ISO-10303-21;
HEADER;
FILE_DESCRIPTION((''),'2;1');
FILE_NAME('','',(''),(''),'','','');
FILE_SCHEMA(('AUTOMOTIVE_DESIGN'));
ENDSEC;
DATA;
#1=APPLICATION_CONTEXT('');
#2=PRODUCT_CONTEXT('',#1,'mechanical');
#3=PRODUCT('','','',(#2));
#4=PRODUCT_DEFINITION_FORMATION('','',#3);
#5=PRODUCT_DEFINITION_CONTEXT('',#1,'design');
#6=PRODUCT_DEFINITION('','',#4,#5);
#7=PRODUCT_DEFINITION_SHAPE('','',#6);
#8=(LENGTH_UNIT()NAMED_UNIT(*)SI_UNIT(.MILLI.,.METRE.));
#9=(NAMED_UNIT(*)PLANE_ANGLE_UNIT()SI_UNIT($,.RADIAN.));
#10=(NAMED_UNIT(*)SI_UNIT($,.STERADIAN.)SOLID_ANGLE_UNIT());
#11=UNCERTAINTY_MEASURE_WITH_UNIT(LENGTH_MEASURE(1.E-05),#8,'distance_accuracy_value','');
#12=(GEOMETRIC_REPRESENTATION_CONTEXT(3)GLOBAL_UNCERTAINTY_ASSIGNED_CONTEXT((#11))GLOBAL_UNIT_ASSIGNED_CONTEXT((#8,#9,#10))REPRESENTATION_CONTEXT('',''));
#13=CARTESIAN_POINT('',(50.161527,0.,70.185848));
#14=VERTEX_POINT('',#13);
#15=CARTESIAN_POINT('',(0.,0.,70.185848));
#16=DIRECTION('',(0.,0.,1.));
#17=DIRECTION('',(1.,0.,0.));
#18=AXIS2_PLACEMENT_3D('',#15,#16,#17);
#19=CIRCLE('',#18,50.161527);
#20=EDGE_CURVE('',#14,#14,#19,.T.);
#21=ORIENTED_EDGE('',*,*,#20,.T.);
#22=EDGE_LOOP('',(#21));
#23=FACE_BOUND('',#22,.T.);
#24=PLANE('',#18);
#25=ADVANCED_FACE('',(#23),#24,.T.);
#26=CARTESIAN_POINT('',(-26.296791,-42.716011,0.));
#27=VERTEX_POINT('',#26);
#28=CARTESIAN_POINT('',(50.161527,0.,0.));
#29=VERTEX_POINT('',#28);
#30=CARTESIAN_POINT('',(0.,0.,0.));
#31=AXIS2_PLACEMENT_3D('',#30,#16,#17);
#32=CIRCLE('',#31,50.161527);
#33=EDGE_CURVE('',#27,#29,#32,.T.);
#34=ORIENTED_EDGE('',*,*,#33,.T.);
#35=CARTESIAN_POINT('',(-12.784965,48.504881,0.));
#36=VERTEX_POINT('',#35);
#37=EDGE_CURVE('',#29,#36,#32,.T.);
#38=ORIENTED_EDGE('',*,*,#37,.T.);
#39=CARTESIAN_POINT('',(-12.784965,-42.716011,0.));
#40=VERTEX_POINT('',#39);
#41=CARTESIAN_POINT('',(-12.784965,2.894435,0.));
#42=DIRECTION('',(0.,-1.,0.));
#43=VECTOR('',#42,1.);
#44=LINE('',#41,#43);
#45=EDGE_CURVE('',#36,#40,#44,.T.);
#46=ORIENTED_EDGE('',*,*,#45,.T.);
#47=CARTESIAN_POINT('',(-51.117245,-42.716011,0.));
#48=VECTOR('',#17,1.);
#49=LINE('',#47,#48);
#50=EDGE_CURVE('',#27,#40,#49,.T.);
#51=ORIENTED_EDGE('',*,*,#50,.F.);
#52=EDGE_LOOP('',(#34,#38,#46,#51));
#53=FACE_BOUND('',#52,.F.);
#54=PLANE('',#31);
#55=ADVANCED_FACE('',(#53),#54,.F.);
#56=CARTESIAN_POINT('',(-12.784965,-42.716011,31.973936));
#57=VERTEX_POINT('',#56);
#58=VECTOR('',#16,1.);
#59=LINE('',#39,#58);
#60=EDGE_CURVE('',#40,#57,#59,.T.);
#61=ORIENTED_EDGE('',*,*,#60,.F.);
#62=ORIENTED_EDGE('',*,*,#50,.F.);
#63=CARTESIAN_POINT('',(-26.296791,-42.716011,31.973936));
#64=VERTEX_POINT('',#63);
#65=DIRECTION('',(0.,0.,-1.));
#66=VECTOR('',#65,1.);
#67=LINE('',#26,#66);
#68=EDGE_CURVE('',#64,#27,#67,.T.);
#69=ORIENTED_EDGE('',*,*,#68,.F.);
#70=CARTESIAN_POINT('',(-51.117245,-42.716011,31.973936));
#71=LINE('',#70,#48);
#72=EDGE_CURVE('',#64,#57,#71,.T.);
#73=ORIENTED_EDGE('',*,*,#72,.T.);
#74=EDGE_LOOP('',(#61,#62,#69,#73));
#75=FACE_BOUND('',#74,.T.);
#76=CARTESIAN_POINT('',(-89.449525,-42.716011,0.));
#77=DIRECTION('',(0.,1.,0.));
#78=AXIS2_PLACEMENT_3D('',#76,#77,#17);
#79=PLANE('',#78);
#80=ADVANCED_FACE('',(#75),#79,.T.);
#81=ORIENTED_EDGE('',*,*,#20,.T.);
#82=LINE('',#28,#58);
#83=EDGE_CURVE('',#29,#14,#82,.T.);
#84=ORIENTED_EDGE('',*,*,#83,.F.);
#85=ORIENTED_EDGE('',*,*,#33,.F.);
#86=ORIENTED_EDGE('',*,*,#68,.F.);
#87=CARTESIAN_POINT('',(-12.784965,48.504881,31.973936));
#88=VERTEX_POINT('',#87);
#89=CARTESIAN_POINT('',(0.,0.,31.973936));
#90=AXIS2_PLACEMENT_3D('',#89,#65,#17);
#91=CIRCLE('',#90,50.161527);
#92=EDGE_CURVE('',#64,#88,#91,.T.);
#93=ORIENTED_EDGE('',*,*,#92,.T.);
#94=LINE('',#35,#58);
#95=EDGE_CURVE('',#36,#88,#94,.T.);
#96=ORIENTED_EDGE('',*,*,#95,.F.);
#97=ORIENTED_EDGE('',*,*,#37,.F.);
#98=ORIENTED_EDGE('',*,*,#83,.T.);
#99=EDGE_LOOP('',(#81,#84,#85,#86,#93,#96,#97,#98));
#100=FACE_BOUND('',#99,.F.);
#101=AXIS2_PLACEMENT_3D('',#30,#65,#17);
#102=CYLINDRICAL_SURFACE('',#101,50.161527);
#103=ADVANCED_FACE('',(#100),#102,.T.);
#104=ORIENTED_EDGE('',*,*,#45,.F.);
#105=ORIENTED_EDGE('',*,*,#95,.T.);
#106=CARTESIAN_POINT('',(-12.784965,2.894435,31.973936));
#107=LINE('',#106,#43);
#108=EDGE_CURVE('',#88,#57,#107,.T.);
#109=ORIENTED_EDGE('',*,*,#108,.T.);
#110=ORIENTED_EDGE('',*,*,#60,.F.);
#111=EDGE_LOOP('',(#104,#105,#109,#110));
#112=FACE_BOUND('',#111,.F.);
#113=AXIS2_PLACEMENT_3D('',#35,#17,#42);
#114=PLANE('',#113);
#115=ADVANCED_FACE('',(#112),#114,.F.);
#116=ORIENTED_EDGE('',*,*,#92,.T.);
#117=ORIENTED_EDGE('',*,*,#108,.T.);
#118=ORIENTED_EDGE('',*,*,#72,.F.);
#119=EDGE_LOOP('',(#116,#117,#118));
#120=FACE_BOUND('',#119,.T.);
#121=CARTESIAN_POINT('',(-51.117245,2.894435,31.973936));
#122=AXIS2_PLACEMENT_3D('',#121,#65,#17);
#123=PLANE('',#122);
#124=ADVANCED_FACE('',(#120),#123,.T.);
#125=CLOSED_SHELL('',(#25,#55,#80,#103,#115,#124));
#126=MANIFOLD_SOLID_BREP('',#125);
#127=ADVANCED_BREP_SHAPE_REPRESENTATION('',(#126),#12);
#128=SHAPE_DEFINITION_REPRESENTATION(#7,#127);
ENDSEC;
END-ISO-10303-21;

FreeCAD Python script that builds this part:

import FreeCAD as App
import Part
import Sketcher
from FreeCAD import Vector


def add_polygon(sketch, points):
    """Adds a closed chain of lines whose ends are joined by coincident constraints."""
    first, n = sketch.GeometryCount, len(points)
    for a, b in zip(points, points[1:] + points[:1]):
        sketch.addGeometry(Part.LineSegment(App.Vector(*a, 0), App.Vector(*b, 0)), False)
    for i in range(n):
        sketch.addConstraint(Sketcher.Constraint("Coincident", first + i, 2, first + (i + 1) % n, 1))

doc = App.newDocument("Part")
params = doc.addObject("Spreadsheet::Sheet", "Params")
for row, (alias, value) in enumerate([
    ("pad1_length", "70.185848 mm"),
    ("pocket1_length", "31.973936 mm"),
], start=1):
    params.set(f"A{row}", alias)
    params.set(f"B{row}", "=" + value)
    params.setAlias(f"B{row}", alias)

body = doc.addObject("PartDesign::Body", "Body")

# Sketch on XY plane
sketch1 = body.newObject("Sketcher::SketchObject", "Sketch")
sketch1.AttachmentSupport = (doc.getObject("XY_Plane"), [""])
sketch1.MapMode = "FlatFace"
sketch1.addGeometry(Part.Circle(Vector(0, 0, 0), Vector(0, 0, 1), 50), False)
sketch1.addConstraint([
    Sketcher.Constraint("Coincident", 0, 3, -1, 1),
    Sketcher.Constraint("Diameter", 0, 100.323054),
])
pad1 = body.newObject("PartDesign::Pad", "Pad")
pad1.Profile = sketch1
pad1.setExpression("Length", "Params.pad1_length")

# Sketch on XY plane
sketch2 = body.newObject("Sketcher::SketchObject", "Sketch001")
sketch2.AttachmentSupport = (doc.getObject("XY_Plane"), [""])
sketch2.MapMode = "FlatFace"
add_polygon(sketch2, [(-89, -43), (-89, 49), (-13, 49), (-13, -43)])  # lines 0-3
sketch2.addConstraint([
    Sketcher.Constraint("Vertical", 0),
    Sketcher.Constraint("Horizontal", 1),
    Sketcher.Constraint("Vertical", 2),
    Sketcher.Constraint("Horizontal", 3),
    Sketcher.Constraint("DistanceX", 1, 1, 1, 2, 76.66456),
    Sketcher.Constraint("DistanceY", 0, 1, 0, 2, 91.220892),
    Sketcher.Constraint("DistanceY", -1, 1, 0, 2, 48.504881),
    Sketcher.Constraint("DistanceX", 0, 2, -1, 1, 89.449525),
])
pocket1 = body.newObject("PartDesign::Pocket", "Pocket")
pocket1.Profile = sketch2
pocket1.setExpression("Length", "Params.pocket1_length")
pocket1.Reversed = True

doc.recompute()
